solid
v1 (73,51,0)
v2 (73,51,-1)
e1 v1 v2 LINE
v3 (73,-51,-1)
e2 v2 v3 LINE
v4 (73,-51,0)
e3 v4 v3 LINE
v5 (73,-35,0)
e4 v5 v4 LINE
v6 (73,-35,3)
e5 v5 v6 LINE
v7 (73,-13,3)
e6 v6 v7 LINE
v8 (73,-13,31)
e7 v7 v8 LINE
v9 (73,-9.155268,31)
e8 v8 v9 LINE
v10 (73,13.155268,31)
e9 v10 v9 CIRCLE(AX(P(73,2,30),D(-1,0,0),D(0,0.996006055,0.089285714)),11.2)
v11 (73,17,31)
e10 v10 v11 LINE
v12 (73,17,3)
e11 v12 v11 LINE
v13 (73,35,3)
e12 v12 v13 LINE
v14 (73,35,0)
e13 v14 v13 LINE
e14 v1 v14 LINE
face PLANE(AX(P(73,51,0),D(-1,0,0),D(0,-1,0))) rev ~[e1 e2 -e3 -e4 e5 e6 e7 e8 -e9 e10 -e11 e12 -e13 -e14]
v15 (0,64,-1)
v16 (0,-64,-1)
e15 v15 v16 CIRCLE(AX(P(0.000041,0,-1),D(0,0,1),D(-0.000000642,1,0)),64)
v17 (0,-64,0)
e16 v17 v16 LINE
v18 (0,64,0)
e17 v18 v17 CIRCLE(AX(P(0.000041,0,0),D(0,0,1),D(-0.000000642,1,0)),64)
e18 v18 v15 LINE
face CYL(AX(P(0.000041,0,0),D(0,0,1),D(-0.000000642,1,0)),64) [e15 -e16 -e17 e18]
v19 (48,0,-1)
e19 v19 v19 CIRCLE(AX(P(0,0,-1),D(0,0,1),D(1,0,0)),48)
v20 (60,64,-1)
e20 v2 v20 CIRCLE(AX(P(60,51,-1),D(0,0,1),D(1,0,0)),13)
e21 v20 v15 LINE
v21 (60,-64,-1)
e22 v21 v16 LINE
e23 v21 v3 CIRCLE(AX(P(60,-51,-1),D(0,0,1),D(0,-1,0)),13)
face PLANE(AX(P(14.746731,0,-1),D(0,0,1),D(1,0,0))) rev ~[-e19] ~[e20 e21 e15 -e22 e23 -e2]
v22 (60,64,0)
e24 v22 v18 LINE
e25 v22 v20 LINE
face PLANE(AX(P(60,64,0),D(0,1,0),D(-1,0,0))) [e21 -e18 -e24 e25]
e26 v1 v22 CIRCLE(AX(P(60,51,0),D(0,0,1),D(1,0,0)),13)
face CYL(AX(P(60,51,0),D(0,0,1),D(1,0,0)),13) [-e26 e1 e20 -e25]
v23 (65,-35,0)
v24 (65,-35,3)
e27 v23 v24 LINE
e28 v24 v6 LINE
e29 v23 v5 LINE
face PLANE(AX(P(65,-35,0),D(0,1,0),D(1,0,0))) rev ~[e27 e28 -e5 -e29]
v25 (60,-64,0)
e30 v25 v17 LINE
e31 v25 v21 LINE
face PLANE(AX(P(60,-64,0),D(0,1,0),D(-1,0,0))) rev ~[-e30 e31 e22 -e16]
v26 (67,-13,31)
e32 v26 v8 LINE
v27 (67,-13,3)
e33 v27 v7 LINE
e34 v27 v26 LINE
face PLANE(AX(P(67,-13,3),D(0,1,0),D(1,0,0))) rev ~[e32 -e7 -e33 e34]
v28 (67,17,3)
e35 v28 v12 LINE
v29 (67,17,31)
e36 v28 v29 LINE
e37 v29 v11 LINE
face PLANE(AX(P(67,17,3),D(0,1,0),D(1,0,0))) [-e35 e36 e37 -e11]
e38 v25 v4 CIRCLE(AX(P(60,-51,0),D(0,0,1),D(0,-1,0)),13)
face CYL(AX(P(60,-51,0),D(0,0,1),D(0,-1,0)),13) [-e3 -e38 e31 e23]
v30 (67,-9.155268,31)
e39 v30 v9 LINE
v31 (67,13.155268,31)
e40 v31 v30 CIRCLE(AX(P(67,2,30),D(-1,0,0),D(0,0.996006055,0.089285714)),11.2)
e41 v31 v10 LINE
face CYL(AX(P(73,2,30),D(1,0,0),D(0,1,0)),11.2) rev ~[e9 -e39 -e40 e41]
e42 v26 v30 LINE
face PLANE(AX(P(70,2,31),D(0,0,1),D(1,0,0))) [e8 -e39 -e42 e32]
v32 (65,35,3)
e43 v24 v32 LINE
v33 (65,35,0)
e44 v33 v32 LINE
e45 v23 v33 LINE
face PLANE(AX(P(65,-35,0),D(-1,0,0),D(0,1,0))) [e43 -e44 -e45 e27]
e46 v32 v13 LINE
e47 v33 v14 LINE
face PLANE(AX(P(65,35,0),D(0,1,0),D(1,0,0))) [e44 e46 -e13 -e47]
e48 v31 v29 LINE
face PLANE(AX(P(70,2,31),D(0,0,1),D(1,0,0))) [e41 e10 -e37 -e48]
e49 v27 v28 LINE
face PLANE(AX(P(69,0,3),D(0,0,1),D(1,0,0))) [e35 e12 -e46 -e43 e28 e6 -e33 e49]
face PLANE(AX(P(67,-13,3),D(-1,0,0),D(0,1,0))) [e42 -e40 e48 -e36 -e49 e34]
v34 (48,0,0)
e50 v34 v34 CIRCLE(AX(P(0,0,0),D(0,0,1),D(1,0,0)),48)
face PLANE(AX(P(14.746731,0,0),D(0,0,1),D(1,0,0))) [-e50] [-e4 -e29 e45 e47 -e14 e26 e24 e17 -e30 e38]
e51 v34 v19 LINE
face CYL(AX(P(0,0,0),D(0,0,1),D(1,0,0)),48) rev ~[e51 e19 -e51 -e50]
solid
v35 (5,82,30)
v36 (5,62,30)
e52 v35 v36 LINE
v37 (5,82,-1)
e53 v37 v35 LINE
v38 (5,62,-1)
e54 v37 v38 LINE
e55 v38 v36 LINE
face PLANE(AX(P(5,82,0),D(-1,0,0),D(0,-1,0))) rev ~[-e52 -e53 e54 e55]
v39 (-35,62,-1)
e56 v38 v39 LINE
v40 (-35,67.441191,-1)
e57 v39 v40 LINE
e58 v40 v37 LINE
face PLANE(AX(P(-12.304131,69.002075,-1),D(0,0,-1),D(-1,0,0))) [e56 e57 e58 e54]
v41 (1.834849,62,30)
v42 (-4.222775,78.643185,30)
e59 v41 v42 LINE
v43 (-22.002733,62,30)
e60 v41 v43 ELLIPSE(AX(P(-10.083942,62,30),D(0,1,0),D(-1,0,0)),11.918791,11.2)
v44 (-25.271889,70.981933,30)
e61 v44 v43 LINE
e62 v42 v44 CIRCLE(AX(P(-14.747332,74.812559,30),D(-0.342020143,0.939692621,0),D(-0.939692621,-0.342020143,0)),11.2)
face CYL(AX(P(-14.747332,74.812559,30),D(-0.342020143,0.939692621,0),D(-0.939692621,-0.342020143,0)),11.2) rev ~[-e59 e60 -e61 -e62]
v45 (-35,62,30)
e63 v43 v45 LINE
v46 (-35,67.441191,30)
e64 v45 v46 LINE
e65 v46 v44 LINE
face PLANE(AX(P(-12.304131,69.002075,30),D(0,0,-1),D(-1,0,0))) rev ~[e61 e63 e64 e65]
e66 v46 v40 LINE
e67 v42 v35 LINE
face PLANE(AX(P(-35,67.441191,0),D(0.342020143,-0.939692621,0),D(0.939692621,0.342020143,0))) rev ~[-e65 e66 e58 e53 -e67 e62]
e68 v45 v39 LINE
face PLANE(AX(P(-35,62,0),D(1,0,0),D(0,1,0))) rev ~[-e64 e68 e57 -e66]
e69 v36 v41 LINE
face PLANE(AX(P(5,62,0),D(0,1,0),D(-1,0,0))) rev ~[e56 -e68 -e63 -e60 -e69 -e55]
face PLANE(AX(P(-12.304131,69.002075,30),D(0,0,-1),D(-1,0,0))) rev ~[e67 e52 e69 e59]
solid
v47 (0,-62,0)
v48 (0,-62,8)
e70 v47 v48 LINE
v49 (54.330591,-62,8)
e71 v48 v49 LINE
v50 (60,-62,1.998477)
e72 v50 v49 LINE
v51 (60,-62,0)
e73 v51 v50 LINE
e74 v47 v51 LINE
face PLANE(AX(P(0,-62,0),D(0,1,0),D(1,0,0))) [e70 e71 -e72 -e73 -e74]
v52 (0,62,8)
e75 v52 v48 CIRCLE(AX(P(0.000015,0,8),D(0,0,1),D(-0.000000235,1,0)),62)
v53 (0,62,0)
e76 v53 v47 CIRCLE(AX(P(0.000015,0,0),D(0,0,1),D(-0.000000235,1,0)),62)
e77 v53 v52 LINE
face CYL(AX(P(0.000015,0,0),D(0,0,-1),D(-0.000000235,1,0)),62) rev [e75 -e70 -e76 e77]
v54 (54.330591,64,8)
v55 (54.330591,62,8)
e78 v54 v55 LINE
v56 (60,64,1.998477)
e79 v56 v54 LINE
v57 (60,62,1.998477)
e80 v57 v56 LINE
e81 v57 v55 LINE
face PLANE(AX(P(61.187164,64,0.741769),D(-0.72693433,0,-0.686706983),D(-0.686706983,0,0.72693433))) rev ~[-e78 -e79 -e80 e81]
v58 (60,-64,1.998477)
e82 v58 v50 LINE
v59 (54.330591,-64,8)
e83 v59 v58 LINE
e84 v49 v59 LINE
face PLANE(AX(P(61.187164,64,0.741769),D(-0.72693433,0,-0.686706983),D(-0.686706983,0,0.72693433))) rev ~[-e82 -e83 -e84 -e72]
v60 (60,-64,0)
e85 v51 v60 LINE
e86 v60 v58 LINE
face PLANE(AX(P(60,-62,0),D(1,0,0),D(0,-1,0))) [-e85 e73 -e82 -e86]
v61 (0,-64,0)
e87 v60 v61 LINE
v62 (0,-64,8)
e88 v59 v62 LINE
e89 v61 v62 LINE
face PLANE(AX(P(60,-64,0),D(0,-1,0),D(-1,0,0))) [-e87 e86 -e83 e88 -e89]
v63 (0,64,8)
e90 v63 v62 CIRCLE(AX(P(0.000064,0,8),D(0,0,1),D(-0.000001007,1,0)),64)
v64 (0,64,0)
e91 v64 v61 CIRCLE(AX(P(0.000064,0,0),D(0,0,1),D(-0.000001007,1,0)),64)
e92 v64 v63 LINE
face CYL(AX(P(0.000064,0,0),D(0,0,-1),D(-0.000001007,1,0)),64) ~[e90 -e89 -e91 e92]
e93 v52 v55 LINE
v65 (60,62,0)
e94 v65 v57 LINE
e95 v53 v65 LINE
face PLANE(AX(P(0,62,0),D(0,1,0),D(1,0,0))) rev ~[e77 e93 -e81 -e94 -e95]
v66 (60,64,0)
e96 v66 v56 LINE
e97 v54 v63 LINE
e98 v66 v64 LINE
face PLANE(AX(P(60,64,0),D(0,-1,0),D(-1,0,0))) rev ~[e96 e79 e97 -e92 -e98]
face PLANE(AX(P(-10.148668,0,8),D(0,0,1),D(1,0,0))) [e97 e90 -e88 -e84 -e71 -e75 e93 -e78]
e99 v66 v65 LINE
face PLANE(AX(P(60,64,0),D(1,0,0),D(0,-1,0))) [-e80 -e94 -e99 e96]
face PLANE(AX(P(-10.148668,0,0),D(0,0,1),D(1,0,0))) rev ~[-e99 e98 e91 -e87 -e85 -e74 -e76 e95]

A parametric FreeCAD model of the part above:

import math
import FreeCAD as App
import Part
import Sketcher

V = App.Vector
Q = App.Units.Quantity

doc = App.newDocument("Part")
body = doc.addObject("PartDesign::Body", "Body")

sketch1 = body.newObject("Sketcher::SketchObject", "Sketch")
sketch1.AttachmentSupport = (doc.getObject("XY_Plane"), [""])
sketch1.MapMode = "FlatFace"
sketch1.addGeometry(Part.LineSegment(V(60, 64, 0), V(0, 64, 0)), False)
sketch1.addGeometry(Part.ArcOfCircle(Part.Circle(V(0.000041, 0, 0), V(0, 0, 1), 64), math.radians(90.000037), math.radians(269.999963)), False)
sketch1.addGeometry(Part.LineSegment(V(0, -64, 0), V(60, -64, 0)), False)
sketch1.addGeometry(Part.ArcOfCircle(Part.Circle(V(60, -51, 0), V(0, 0, 1), 13), math.radians(-90), math.radians(0)), False)
sketch1.addGeometry(Part.LineSegment(V(73, -51, 0), V(73, 51, 0)), False)
sketch1.addGeometry(Part.ArcOfCircle(Part.Circle(V(60, 51, 0), V(0, 0, 1), 13), math.radians(0), math.radians(90)), False)
sketch1.addGeometry(Part.Circle(V(0, 0, 0), V(0, 0, 1), 48), False)
sketch1.addConstraint(Sketcher.Constraint("Coincident", 0, 2, 1, 1))
sketch1.addConstraint(Sketcher.Constraint("Coincident", 1, 2, 2, 1))
sketch1.addConstraint(Sketcher.Constraint("Coincident", 2, 2, 3, 1))
sketch1.addConstraint(Sketcher.Constraint("Coincident", 3, 2, 4, 1))
sketch1.addConstraint(Sketcher.Constraint("Coincident", 4, 2, 5, 1))
sketch1.addConstraint(Sketcher.Constraint("Coincident", 5, 2, 0, 1))
sketch1.addConstraint(Sketcher.Constraint("Horizontal", 0))
sketch1.addConstraint(Sketcher.Constraint("Horizontal", 2))
sketch1.addConstraint(Sketcher.Constraint("Vertical", 4))
sketch1.addConstraint(Sketcher.Constraint("Coincident", 6, 3, -1, 1))
sketch1.addConstraint(Sketcher.Constraint("PointOnObject", 1, 3, -1))
sketch1.addConstraint(Sketcher.Constraint("PointOnObject", 0, 2, -2))
sketch1.addConstraint(Sketcher.Constraint("PointOnObject", 1, 2, -2))
sketch1.addConstraint(Sketcher.Constraint("Diameter", 6, 96.0))
sketch1.addConstraint(Sketcher.Constraint("Radius", 1, 64.0))
sketch1.addConstraint(Sketcher.Constraint("Radius", 3, 13.0))
sketch1.addConstraint(Sketcher.Constraint("Radius", 5, 13.0))
sketch1.addConstraint(Sketcher.Constraint("DistanceX", 0, 2, 0, 1, 60.0))
sketch1.addConstraint(Sketcher.Constraint("DistanceX", 2, 1, 2, 2, 60.0))
sketch1.addConstraint(Sketcher.Constraint("DistanceY", 4, 1, 4, 2, 102.0))
sketch1.addConstraint(Sketcher.Constraint("DistanceX", -1, 1, 3, 3, 60.0))
sketch1.addConstraint(Sketcher.Constraint("DistanceY", 3, 2, -1, 1, 51.0))
sketch1.addConstraint(Sketcher.Constraint("DistanceX", 1, 3, 3, 3, 59.999959))
pad1 = body.newObject("PartDesign::Pad", "Pad")
pad1.Profile = sketch1
pad1.Length = 1
pad1.Reversed = True

sketch2 = body.newObject("Sketcher::SketchObject", "Sketch001")
sketch2.AttachmentSupport = (doc.getObject("XY_Plane"), [""])
sketch2.MapMode = "FlatFace"
sketch2.addGeometry(Part.LineSegment(V(65, 35, 0), V(65, -35, 0)), False)
sketch2.addGeometry(Part.LineSegment(V(65, -35, 0), V(73, -35, 0)), False)
sketch2.addGeometry(Part.LineSegment(V(73, -35, 0), V(73, 35, 0)), False)
sketch2.addGeometry(Part.LineSegment(V(73, 35, 0), V(65, 35, 0)), False)
sketch2.addConstraint(Sketcher.Constraint("Coincident", 0, 2, 1, 1))
sketch2.addConstraint(Sketcher.Constraint("Coincident", 1, 2, 2, 1))
sketch2.addConstraint(Sketcher.Constraint("Coincident", 2, 2, 3, 1))
sketch2.addConstraint(Sketcher.Constraint("Coincident", 3, 2, 0, 1))
sketch2.addConstraint(Sketcher.Constraint("Vertical", 0))
sketch2.addConstraint(Sketcher.Constraint("Horizontal", 1))
sketch2.addConstraint(Sketcher.Constraint("Vertical", 2))
sketch2.addConstraint(Sketcher.Constraint("Horizontal", 3))
sketch2.addConstraint(Sketcher.Constraint("DistanceX", 1, 1, 1, 2, 8.0))
sketch2.addConstraint(Sketcher.Constraint("DistanceY", 0, 2, 0, 1, 70.0))
sketch2.addConstraint(Sketcher.Constraint("DistanceX", -1, 1, 0, 2, 65.0))
sketch2.addConstraint(Sketcher.Constraint("DistanceY", 0, 2, -1, 1, 35.0))
pad2 = body.newObject("PartDesign::Pad", "Pad001")
pad2.Profile = sketch2
pad2.Length = 3

sketch3 = body.newObject("Sketcher::SketchObject", "Sketch002")
sketch3.AttachmentSupport = (doc.getObject("XY_Plane"), [""])
sketch3.MapMode = "FlatFace"
sketch3.AttachmentOffset = App.Placement(V(0, 0, 3), App.Rotation())
sketch3.addGeometry(Part.LineSegment(V(67, 17, 0), V(67, -13, 0)), False)
sketch3.addGeometry(Part.LineSegment(V(67, -13, 0), V(73, -13, 0)), False)
sketch3.addGeometry(Part.LineSegment(V(73, -13, 0), V(73, 17, 0)), False)
sketch3.addGeometry(Part.LineSegment(V(73, 17, 0), V(67, 17, 0)), False)
sketch3.addConstraint(Sketcher.Constraint("Coincident", 0, 2, 1, 1))
sketch3.addConstraint(Sketcher.Constraint("Coincident", 1, 2, 2, 1))
sketch3.addConstraint(Sketcher.Constraint("Coincident", 2, 2, 3, 1))
sketch3.addConstraint(Sketcher.Constraint("Coincident", 3, 2, 0, 1))
sketch3.addConstraint(Sketcher.Constraint("Vertical", 0))
sketch3.addConstraint(Sketcher.Constraint("Horizontal", 1))
sketch3.addConstraint(Sketcher.Constraint("Vertical", 2))
sketch3.addConstraint(Sketcher.Constraint("Horizontal", 3))
sketch3.addConstraint(Sketcher.Constraint("DistanceX", 1, 1, 1, 2, 6.0))
sketch3.addConstraint(Sketcher.Constraint("DistanceY", 0, 2, 0, 1, 30.0))
sketch3.addConstraint(Sketcher.Constraint("DistanceX", -1, 1, 0, 2, 67.0))
sketch3.addConstraint(Sketcher.Constraint("DistanceY", 0, 2, -1, 1, 13.0))
pad3 = body.newObject("PartDesign::Pad", "Pad002")
pad3.Profile = sketch3
pad3.Length = 28

sketch4 = body.newObject("Sketcher::SketchObject", "Sketch003")
sketch4.AttachmentSupport = (doc.getObject("YZ_Plane"), [""])
sketch4.MapMode = "FlatFace"
sketch4.AttachmentOffset = App.Placement(V(0, 0, 73), App.Rotation())
sketch4.addGeometry(Part.Circle(V(2, 30, 0), V(0, 0, 1), 11.2), False)
sketch4.addConstraint(Sketcher.Constraint("Diameter", 0, 22.4))
sketch4.addConstraint(Sketcher.Constraint("DistanceX", -1, 1, 0, 3, 2.0))
sketch4.addConstraint(Sketcher.Constraint("DistanceY", -1, 1, 0, 3, 30.0))
pocket1 = body.newObject("PartDesign::Pocket", "Pocket")
pocket1.Profile = sketch4
pocket1.Type = "ThroughAll"
body2 = doc.addObject("PartDesign::Body", "Body001")

sketch5 = body2.newObject("Sketcher::SketchObject", "Sketch004")
sketch5.AttachmentSupport = (doc.getObject("XY_Plane001"), [""])
sketch5.MapMode = "FlatFace"
sketch5.addGeometry(Part.LineSegment(V(60, 64, 0), V(0, 64, 0)), False)
sketch5.addGeometry(Part.ArcOfCircle(Part.Circle(V(0.000064, 0, 0), V(0, 0, 1), 64), math.radians(90.000058), math.radians(269.999942)), False)
sketch5.addGeometry(Part.LineSegment(V(0, -64, 0), V(60, -64, 0)), False)
sketch5.addGeometry(Part.LineSegment(V(60, -64, 0), V(60, -62, 0)), False)
sketch5.addGeometry(Part.LineSegment(V(60, -62, 0), V(0, -62, 0)), False)
sketch5.addGeometry(Part.ArcOfCircle(Part.Circle(V(0.000015, 0, 0), V(0, 0, 1), 62), math.radians(90.000013), math.radians(269.999987)), False)
sketch5.addGeometry(Part.LineSegment(V(0, 62, 0), V(60, 62, 0)), False)
sketch5.addGeometry(Part.LineSegment(V(60, 62, 0), V(60, 64, 0)), False)
sketch5.addConstraint(Sketcher.Constraint("Coincident", 0, 2, 1, 1))
sketch5.addConstraint(Sketcher.Constraint("Coincident", 1, 2, 2, 1))
sketch5.addConstraint(Sketcher.Constraint("Coincident", 2, 2, 3, 1))
sketch5.addConstraint(Sketcher.Constraint("Coincident", 3, 2, 4, 1))
sketch5.addConstraint(Sketcher.Constraint("Coincident", 4, 2, 5, 2))
sketch5.addConstraint(Sketcher.Constraint("Coincident", 5, 1, 6, 1))
sketch5.addConstraint(Sketcher.Constraint("Coincident", 6, 2, 7, 1))
sketch5.addConstraint(Sketcher.Constraint("Coincident", 7, 2, 0, 1))
sketch5.addConstraint(Sketcher.Constraint("Horizontal", 0))
sketch5.addConstraint(Sketcher.Constraint("Horizontal", 2))
sketch5.addConstraint(Sketcher.Constraint("Vertical", 3))
sketch5.addConstraint(Sketcher.Constraint("Horizontal", 4))
sketch5.addConstraint(Sketcher.Constraint("Horizontal", 6))
sketch5.addConstraint(Sketcher.Constraint("Vertical", 7))
sketch5.addConstraint(Sketcher.Constraint("PointOnObject", 1, 3, -1))
sketch5.addConstraint(Sketcher.Constraint("PointOnObject", 5, 3, -1))
sketch5.addConstraint(Sketcher.Constraint("PointOnObject", 0, 2, -2))
sketch5.addConstraint(Sketcher.Constraint("PointOnObject", 1, 2, -2))
sketch5.addConstraint(Sketcher.Constraint("PointOnObject", 4, 2, -2))
sketch5.addConstraint(Sketcher.Constraint("PointOnObject", 5, 1, -2))
sketch5.addConstraint(Sketcher.Constraint("Radius", 1, 64.0))
sketch5.addConstraint(Sketcher.Constraint("Radius", 5, 62.0))
sketch5.addConstraint(Sketcher.Constraint("DistanceX", 0, 2, 0, 1, 60.0))
sketch5.addConstraint(Sketcher.Constraint("DistanceX", 2, 1, 2, 2, 60.0))
sketch5.addConstraint(Sketcher.Constraint("DistanceX", 1, 3, 2, 2, 59.999936))
sketch5.addConstraint(Sketcher.Constraint("DistanceX", 5, 3, 2, 2, 59.999985))
pad4 = body2.newObject("PartDesign::Pad", "Pad003")
pad4.Profile = sketch5
pad4.Length = 8

sketch6 = body2.newObject("Sketcher::SketchObject", "Sketch005")
sketch6.AttachmentSupport = (doc.getObject("XZ_Plane001"), [""])
sketch6.MapMode = "FlatFace"
sketch6.AttachmentOffset = App.Placement(V(0, 0, -64), App.Rotation())
sketch6.addGeometry(Part.LineSegment(V(53.9525, 8.40024, 0), V(64.202263, 10.836407, 0)), False)
sketch6.addGeometry(Part.LineSegment(V(64.202263, 10.836407, 0), V(61.187164, 0.741769, 0)), False)
sketch6.addGeometry(Part.LineSegment(V(61.187164, 0.741769, 0), V(53.9525, 8.40024, 0)), False)
sketch6.addConstraint(Sketcher.Constraint("Coincident", 0, 2, 1, 1))
sketch6.addConstraint(Sketcher.Constraint("Coincident", 1, 2, 2, 1))
sketch6.addConstraint(Sketcher.Constraint("Coincident", 2, 2, 0, 1))
sketch6.addConstraint(Sketcher.Constraint("Equal", 0, 1))
sketch6.addConstraint(Sketcher.Constraint("Equal", 1, 2))
sketch6.addConstraint(Sketcher.Constraint("Angle", 0, Q("13.37 deg")))
sketch6.addConstraint(Sketcher.Constraint("Distance", 0, 10.5353))
sketch6.addConstraint(Sketcher.Constraint("DistanceX", -1, 1, 2, 2, 53.9525))
sketch6.addConstraint(Sketcher.Constraint("DistanceY", -1, 1, 1, 2, 0.741769))
pocket2 = body2.newObject("PartDesign::Pocket", "Pocket001")
pocket2.Profile = sketch6
pocket2.Type = "ThroughAll"
pocket2.Reversed = True
body3 = doc.addObject("PartDesign::Body", "Body002")

sketch7 = body3.newObject("Sketcher::SketchObject", "Sketch006")
sketch7.AttachmentSupport = (doc.getObject("XY_Plane002"), [""])
sketch7.MapMode = "FlatFace"
sketch7.addGeometry(Part.LineSegment(V(-35, 62, 0), V(5, 62, 0)), False)
sketch7.addGeometry(Part.LineSegment(V(5, 62, 0), V(5, 82, 0)), False)
sketch7.addGeometry(Part.LineSegment(V(5, 82, 0), V(-35, 67.441191, 0)), False)
sketch7.addGeometry(Part.LineSegment(V(-35, 67.441191, 0), V(-35, 62, 0)), False)
sketch7.addConstraint(Sketcher.Constraint("Coincident", 0, 2, 1, 1))
sketch7.addConstraint(Sketcher.Constraint("Coincident", 1, 2, 2, 1))
sketch7.addConstraint(Sketcher.Constraint("Coincident", 2, 2, 3, 1))
sketch7.addConstraint(Sketcher.Constraint("Coincident", 3, 2, 0, 1))
sketch7.addConstraint(Sketcher.Constraint("Horizontal", 0))
sketch7.addConstraint(Sketcher.Constraint("Vertical", 1))
sketch7.addConstraint(Sketcher.Constraint("Vertical", 3))
sketch7.addConstraint(Sketcher.Constraint("DistanceX", 0, 1, 0, 2, 40.0))
sketch7.addConstraint(Sketcher.Constraint("DistanceY", 1, 1, 1, 2, 20.0))
sketch7.addConstraint(Sketcher.Constraint("Angle", 2, Q("-160 deg")))
sketch7.addConstraint(Sketcher.Constraint("DistanceX", -1, 1, 0, 2, 5.0))
sketch7.addConstraint(Sketcher.Constraint("DistanceY", -1, 1, 0, 2, 62.0))
pad5 = body3.newObject("PartDesign::Pad", "Pad004")
pad5.Profile = sketch7
pad5.Type = "TwoLengths"
pad5.Length = 30
pad5.Length2 = 1

sketch8 = body3.newObject("Sketcher::SketchObject", "Sketch007")
sketch8.Placement = App.Placement(V(-25.769403, 70.800853, 0), App.Rotation(V(-0.939692621, -0.342020143, 0), V(0, 0, 1), V(-0.342020143, 0.939692621, 0), "ZXY"))
sketch8.addGeometry(Part.Circle(V(-11.729443, 30, 0), V(0, 0, 1), 11.2), False)
sketch8.addConstraint(Sketcher.Constraint("Diameter", 0, 22.4))
sketch8.addConstraint(Sketcher.Constraint("DistanceY", -1, 1, 0, 3, 30.0))
sketch8.addConstraint(Sketcher.Constraint("DistanceX", 0, 3, -1, 1, 11.729443))
pocket3 = body3.newObject("PartDesign::Pocket", "Pocket002")
pocket3.Profile = sketch8
pocket3.Type = "ThroughAll"

doc.recompute()
